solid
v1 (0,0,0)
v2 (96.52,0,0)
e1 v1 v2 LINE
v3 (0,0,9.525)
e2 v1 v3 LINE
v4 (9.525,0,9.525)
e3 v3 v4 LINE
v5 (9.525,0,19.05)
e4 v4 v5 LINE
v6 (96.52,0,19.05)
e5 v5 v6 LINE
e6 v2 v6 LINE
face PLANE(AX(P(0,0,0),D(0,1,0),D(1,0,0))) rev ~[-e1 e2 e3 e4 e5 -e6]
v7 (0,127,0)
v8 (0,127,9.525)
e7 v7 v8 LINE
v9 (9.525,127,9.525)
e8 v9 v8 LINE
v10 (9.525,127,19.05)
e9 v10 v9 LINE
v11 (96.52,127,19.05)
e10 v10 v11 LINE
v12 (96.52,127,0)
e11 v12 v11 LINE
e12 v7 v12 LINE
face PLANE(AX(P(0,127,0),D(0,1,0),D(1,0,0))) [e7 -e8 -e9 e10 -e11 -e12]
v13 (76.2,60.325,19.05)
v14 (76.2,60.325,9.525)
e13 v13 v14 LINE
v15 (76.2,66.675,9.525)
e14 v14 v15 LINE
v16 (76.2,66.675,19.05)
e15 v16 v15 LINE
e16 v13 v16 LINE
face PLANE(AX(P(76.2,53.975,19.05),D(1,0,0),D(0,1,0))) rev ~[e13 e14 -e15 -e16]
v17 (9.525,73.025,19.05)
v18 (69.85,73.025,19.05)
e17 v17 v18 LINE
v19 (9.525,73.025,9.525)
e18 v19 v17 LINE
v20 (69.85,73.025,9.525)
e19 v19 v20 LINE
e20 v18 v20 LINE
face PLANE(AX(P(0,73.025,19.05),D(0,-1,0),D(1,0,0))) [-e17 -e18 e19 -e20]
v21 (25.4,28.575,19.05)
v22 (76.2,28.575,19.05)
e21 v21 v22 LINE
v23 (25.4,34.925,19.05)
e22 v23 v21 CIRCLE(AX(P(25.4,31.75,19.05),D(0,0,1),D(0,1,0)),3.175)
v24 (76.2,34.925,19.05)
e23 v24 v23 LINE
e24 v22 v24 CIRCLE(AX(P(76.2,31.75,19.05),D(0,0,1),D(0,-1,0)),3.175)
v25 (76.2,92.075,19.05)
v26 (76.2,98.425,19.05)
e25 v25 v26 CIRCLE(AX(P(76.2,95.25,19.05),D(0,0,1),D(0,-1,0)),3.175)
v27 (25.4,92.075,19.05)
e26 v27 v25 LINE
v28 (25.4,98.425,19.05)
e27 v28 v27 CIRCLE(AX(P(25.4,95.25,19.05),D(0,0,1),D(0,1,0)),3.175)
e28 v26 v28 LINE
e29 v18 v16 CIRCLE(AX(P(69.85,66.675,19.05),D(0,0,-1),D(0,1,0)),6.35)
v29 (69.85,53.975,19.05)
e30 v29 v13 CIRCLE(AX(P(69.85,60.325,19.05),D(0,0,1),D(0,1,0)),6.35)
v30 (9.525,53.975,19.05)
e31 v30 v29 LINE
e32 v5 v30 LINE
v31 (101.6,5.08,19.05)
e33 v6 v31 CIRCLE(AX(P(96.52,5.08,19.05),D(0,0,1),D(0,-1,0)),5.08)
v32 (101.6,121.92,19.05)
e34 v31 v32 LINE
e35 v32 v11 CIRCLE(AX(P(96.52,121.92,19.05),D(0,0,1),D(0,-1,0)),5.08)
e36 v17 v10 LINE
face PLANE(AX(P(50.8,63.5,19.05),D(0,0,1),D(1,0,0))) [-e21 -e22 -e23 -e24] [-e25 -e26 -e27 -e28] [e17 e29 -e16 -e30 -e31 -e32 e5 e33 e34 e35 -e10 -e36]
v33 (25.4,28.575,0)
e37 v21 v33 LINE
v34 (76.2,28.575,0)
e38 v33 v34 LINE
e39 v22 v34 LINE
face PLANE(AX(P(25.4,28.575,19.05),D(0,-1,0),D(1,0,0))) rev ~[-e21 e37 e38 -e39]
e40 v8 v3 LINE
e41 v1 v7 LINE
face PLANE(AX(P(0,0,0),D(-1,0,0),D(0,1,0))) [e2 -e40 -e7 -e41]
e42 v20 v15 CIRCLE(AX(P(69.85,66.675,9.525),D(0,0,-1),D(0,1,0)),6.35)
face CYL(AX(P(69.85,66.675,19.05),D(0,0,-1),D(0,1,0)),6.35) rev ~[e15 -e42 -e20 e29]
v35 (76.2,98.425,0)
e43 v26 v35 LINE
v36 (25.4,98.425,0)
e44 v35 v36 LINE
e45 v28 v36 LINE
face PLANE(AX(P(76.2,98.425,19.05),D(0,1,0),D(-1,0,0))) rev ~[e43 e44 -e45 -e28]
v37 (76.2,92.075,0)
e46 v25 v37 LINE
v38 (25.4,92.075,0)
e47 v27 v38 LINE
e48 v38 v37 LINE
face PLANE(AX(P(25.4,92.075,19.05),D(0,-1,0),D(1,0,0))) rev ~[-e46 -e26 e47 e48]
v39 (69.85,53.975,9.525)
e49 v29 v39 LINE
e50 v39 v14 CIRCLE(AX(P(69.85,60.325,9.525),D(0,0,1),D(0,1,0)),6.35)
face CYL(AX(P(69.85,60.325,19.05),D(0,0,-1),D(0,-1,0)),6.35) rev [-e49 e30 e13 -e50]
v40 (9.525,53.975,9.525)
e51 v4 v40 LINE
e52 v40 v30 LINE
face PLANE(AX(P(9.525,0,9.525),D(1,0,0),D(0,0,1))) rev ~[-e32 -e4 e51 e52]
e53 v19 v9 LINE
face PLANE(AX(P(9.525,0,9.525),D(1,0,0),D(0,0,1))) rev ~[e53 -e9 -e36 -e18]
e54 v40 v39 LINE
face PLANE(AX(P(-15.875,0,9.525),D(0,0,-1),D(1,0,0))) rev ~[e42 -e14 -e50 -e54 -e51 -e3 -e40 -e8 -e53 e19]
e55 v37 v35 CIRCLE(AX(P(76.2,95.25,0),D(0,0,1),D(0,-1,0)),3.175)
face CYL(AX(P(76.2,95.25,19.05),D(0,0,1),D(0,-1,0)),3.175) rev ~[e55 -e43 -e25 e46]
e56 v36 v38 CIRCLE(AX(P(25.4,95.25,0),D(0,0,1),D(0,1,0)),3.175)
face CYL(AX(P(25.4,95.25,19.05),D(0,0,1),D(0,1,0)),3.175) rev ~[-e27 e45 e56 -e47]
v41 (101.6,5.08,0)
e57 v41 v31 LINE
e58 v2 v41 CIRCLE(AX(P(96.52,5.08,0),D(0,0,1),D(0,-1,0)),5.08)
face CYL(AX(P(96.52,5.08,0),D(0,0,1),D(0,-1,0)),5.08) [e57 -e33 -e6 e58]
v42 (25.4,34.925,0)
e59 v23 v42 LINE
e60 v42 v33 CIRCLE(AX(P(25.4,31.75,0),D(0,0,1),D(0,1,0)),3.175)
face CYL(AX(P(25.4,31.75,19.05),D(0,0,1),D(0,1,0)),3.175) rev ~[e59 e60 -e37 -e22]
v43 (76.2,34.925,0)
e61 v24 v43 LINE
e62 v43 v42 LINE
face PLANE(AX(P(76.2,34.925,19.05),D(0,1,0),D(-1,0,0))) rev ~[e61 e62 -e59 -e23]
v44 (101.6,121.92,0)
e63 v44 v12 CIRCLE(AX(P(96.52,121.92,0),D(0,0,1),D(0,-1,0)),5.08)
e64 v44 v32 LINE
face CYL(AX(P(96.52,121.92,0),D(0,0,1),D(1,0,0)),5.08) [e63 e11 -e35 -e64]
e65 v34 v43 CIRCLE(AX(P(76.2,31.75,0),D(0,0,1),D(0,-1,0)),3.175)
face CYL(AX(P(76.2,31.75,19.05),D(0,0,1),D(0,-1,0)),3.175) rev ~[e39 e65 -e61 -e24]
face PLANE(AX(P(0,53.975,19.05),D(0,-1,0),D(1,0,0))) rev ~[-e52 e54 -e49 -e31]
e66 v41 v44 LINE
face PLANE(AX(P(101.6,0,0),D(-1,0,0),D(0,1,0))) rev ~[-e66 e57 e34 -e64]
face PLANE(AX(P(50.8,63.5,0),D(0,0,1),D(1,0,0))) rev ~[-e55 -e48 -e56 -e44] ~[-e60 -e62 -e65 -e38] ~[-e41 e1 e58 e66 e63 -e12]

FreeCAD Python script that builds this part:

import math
import FreeCAD as App
import Part
import Sketcher
Q = App.Units.Quantity


def edges_at(feature, points):
    """Names of the edges that pass closest to the given points."""
    edges = feature.Shape.Edges
    near = lambda p: min(range(len(edges)), key=lambda i: edges[i].distToShape(Part.Vertex(*p))[0])
    return sorted({f"Edge{near(p) + 1}" for p in points})

doc = App.newDocument("Part")
body = doc.addObject("PartDesign::Body", "Body")

# Sketch on XY plane
sketch1 = body.newObject("Sketcher::SketchObject", "Sketch")
sketch1.AttachmentSupport = (doc.getObject("XY_Plane"), [""])
sketch1.MapMode = "FlatFace"
sketch1.addGeometry(Part.LineSegment(App.Vector(0, 127, 0), App.Vector(0, 0, 0)), False)
sketch1.addGeometry(Part.LineSegment(App.Vector(0, 0, 0), App.Vector(102, 0, 0)), False)
sketch1.addGeometry(Part.LineSegment(App.Vector(102, 0, 0), App.Vector(102, 127, 0)), False)
sketch1.addGeometry(Part.LineSegment(App.Vector(102, 127, 0), App.Vector(0, 127, 0)), False)
sketch1.addConstraint(Sketcher.Constraint("Coincident", 0, 2, 1, 1))
sketch1.addConstraint(Sketcher.Constraint("Coincident", 1, 2, 2, 1))
sketch1.addConstraint(Sketcher.Constraint("Coincident", 2, 2, 3, 1))
sketch1.addConstraint(Sketcher.Constraint("Coincident", 3, 2, 0, 1))
sketch1.addConstraint(Sketcher.Constraint("Vertical", 0))
sketch1.addConstraint(Sketcher.Constraint("Horizontal", 1))
sketch1.addConstraint(Sketcher.Constraint("Vertical", 2))
sketch1.addConstraint(Sketcher.Constraint("Horizontal", 3))
sketch1.addConstraint(Sketcher.Constraint("Coincident", 0, 2, -1, 1))
sketch1.addConstraint(Sketcher.Constraint("DistanceX", 1, 1, 1, 2, Q("4 in")))
sketch1.addConstraint(Sketcher.Constraint("DistanceY", 0, 2, 0, 1, Q("5 in")))
pad1 = body.newObject("PartDesign::Pad", "Pad")
pad1.Profile = sketch1
pad1.Length = Q("0.75 in")

# Sketch on XY plane
sketch2 = body.newObject("Sketcher::SketchObject", "Sketch001")
sketch2.AttachmentSupport = (doc.getObject("XY_Plane"), [""])
sketch2.MapMode = "FlatFace"
sketch2.AttachmentOffset = App.Placement(App.Vector(0, 0, 0.75 * 25.4), App.Rotation())
sketch2.addGeometry(Part.LineSegment(App.Vector(0, 73, 0), App.Vector(0, 54, 0)), False)
sketch2.addGeometry(Part.LineSegment(App.Vector(0, 54, 0), App.Vector(76, 54, 0)), False)
sketch2.addGeometry(Part.LineSegment(App.Vector(76, 54, 0), App.Vector(76, 73, 0)), False)
sketch2.addGeometry(Part.LineSegment(App.Vector(76, 73, 0), App.Vector(0, 73, 0)), False)
sketch2.addConstraint(Sketcher.Constraint("Coincident", 0, 2, 1, 1))
sketch2.addConstraint(Sketcher.Constraint("Coincident", 1, 2, 2, 1))
sketch2.addConstraint(Sketcher.Constraint("Coincident", 2, 2, 3, 1))
sketch2.addConstraint(Sketcher.Constraint("Coincident", 3, 2, 0, 1))
sketch2.addConstraint(Sketcher.Constraint("Vertical", 0))
sketch2.addConstraint(Sketcher.Constraint("Horizontal", 1))
sketch2.addConstraint(Sketcher.Constraint("Vertical", 2))
sketch2.addConstraint(Sketcher.Constraint("Horizontal", 3))
sketch2.addConstraint(Sketcher.Constraint("PointOnObject", 0, 2, -2))
sketch2.addConstraint(Sketcher.Constraint("DistanceX", 1, 1, 1, 2, Q("3 in")))
sketch2.addConstraint(Sketcher.Constraint("DistanceY", 0, 2, 0, 1, Q("0.75 in")))
sketch2.addConstraint(Sketcher.Constraint("DistanceY", -1, 1, 0, 2, Q("2.125 in")))
pocket1 = body.newObject("PartDesign::Pocket", "Pocket")
pocket1.Profile = sketch2
pocket1.Length = Q("0.375 in")
doc.recompute()

fillet = body.newObject("PartDesign::Fillet", "Fillet")
fillet.Base = (pocket1, edges_at(pocket1, [(76.2, 73.025, 14.287), (76.2, 53.975, 14.287)]))
fillet.Radius = Q("0.25 in")

# Sketch on XY plane
sketch3 = body.newObject("Sketcher::SketchObject", "Sketch002")
sketch3.AttachmentSupport = (doc.getObject("XY_Plane"), [""])
sketch3.MapMode = "FlatFace"
sketch3.AttachmentOffset = App.Placement(App.Vector(0, 0, 0.75 * 25.4), App.Rotation())
sketch3.addGeometry(Part.ArcOfCircle(Part.Circle(App.Vector(25.4, 31.8, 0), App.Vector(0, 0, 1), 3.2), math.radians(90), math.radians(270)), False)
sketch3.addGeometry(Part.LineSegment(App.Vector(25.4, 28.6, 0), App.Vector(76.2, 28.6, 0)), False)
sketch3.addGeometry(Part.ArcOfCircle(Part.Circle(App.Vector(76.2, 31.8, 0), App.Vector(0, 0, 1), 3.2), math.radians(-90), math.radians(90)), False)
sketch3.addGeometry(Part.LineSegment(App.Vector(76.2, 34.9, 0), App.Vector(25.4, 34.9, 0)), False)
sketch3.addGeometry(Part.ArcOfCircle(Part.Circle(App.Vector(25.4, 95.2, 0), App.Vector(0, 0, 1), 3.2), math.radians(90), math.radians(270)), False)
sketch3.addGeometry(Part.LineSegment(App.Vector(25.4, 92.1, 0), App.Vector(76.2, 92.1, 0)), False)
sketch3.addGeometry(Part.ArcOfCircle(Part.Circle(App.Vector(76.2, 95.2, 0), App.Vector(0, 0, 1), 3.2), math.radians(-90), math.radians(90)), False)
sketch3.addGeometry(Part.LineSegment(App.Vector(76.2, 98.4, 0), App.Vector(25.4, 98.4, 0)), False)
sketch3.addConstraint(Sketcher.Constraint("Tangent", 0, 2, 1, 1))
sketch3.addConstraint(Sketcher.Constraint("Tangent", 1, 2, 2, 1))
sketch3.addConstraint(Sketcher.Constraint("Tangent", 2, 2, 3, 1))
sketch3.addConstraint(Sketcher.Constraint("Tangent", 3, 2, 0, 1))
sketch3.addConstraint(Sketcher.Constraint("Tangent", 4, 2, 5, 1))
sketch3.addConstraint(Sketcher.Constraint("Tangent", 5, 2, 6, 1))
sketch3.addConstraint(Sketcher.Constraint("Tangent", 6, 2, 7, 1))
sketch3.addConstraint(Sketcher.Constraint("Tangent", 7, 2, 4, 1))
sketch3.addConstraint(Sketcher.Constraint("Horizontal", 1))
sketch3.addConstraint(Sketcher.Constraint("Horizontal", 3))
sketch3.addConstraint(Sketcher.Constraint("Horizontal", 5))
sketch3.addConstraint(Sketcher.Constraint("Horizontal", 7))
sketch3.addConstraint(Sketcher.Constraint("Equal", 2, 4))
sketch3.addConstraint(Sketcher.Constraint("Vertical", 0, 3, 4, 3))
sketch3.addConstraint(Sketcher.Constraint("Vertical", 2, 3, 6, 3))
sketch3.addConstraint(Sketcher.Constraint("DistanceX", 1, 1, 1, 2, Q("2 in")))
sketch3.addConstraint(Sketcher.Constraint("DistanceX", -1, 1, 0, 3, Q("1 in")))
sketch3.addConstraint(Sketcher.Constraint("Radius", 0, Q("0.125 in")))
sketch3.addConstraint(Sketcher.Constraint("DistanceY", 0, 3, 4, 3, Q("2.5 in")))
sketch3.addConstraint(Sketcher.Constraint("DistanceY", -1, 1, 0, 3, Q("1.25 in")))
pocket2 = body.newObject("PartDesign::Pocket", "Pocket001")
pocket2.Profile = sketch3
pocket2.Type = "ThroughAll"
doc.recompute()

fillet2 = body.newObject("PartDesign::Fillet", "Fillet001")
fillet2.Base = (pocket2, edges_at(pocket2, [(101.6, 0, 9.525), (101.6, 127, 9.525)]))
fillet2.Radius = Q("0.2 in")

# Sketch on XZ plane
sketch4 = body.newObject("Sketcher::SketchObject", "Sketch003")
sketch4.AttachmentSupport = (doc.getObject("XZ_Plane"), [""])
sketch4.MapMode = "FlatFace"
sketch4.addGeometry(Part.LineSegment(App.Vector(-16, 29, 0), App.Vector(-16, 10, 0)), False)
sketch4.addGeometry(Part.LineSegment(App.Vector(-16, 10, 0), App.Vector(10, 10, 0)), False)
sketch4.addGeometry(Part.LineSegment(App.Vector(10, 10, 0), App.Vector(10, 29, 0)), False)
sketch4.addGeometry(Part.LineSegment(App.Vector(10, 29, 0), App.Vector(-16, 29, 0)), False)
sketch4.addConstraint(Sketcher.Constraint("Coincident", 0, 2, 1, 1))
sketch4.addConstraint(Sketcher.Constraint("Coincident", 1, 2, 2, 1))
sketch4.addConstraint(Sketcher.Constraint("Coincident", 2, 2, 3, 1))
sketch4.addConstraint(Sketcher.Constraint("Coincident", 3, 2, 0, 1))
sketch4.addConstraint(Sketcher.Constraint("Vertical", 0))
sketch4.addConstraint(Sketcher.Constraint("Horizontal", 1))
sketch4.addConstraint(Sketcher.Constraint("Vertical", 2))
sketch4.addConstraint(Sketcher.Constraint("Horizontal", 3))
sketch4.addConstraint(Sketcher.Constraint("DistanceX", 1, 1, 1, 2, Q("1 in")))
sketch4.addConstraint(Sketcher.Constraint("DistanceY", 0, 2, 0, 1, Q("0.75 in")))
sketch4.addConstraint(Sketcher.Constraint("DistanceX", 0, 2, -1, 1, Q("0.625 in")))
sketch4.addConstraint(Sketcher.Constraint("DistanceY", -1, 1, 0, 2, Q("0.375 in")))
pocket3 = body.newObject("PartDesign::Pocket", "Pocket002")
pocket3.Profile = sketch4
pocket3.Type = "ThroughAll"

doc.recompute()
